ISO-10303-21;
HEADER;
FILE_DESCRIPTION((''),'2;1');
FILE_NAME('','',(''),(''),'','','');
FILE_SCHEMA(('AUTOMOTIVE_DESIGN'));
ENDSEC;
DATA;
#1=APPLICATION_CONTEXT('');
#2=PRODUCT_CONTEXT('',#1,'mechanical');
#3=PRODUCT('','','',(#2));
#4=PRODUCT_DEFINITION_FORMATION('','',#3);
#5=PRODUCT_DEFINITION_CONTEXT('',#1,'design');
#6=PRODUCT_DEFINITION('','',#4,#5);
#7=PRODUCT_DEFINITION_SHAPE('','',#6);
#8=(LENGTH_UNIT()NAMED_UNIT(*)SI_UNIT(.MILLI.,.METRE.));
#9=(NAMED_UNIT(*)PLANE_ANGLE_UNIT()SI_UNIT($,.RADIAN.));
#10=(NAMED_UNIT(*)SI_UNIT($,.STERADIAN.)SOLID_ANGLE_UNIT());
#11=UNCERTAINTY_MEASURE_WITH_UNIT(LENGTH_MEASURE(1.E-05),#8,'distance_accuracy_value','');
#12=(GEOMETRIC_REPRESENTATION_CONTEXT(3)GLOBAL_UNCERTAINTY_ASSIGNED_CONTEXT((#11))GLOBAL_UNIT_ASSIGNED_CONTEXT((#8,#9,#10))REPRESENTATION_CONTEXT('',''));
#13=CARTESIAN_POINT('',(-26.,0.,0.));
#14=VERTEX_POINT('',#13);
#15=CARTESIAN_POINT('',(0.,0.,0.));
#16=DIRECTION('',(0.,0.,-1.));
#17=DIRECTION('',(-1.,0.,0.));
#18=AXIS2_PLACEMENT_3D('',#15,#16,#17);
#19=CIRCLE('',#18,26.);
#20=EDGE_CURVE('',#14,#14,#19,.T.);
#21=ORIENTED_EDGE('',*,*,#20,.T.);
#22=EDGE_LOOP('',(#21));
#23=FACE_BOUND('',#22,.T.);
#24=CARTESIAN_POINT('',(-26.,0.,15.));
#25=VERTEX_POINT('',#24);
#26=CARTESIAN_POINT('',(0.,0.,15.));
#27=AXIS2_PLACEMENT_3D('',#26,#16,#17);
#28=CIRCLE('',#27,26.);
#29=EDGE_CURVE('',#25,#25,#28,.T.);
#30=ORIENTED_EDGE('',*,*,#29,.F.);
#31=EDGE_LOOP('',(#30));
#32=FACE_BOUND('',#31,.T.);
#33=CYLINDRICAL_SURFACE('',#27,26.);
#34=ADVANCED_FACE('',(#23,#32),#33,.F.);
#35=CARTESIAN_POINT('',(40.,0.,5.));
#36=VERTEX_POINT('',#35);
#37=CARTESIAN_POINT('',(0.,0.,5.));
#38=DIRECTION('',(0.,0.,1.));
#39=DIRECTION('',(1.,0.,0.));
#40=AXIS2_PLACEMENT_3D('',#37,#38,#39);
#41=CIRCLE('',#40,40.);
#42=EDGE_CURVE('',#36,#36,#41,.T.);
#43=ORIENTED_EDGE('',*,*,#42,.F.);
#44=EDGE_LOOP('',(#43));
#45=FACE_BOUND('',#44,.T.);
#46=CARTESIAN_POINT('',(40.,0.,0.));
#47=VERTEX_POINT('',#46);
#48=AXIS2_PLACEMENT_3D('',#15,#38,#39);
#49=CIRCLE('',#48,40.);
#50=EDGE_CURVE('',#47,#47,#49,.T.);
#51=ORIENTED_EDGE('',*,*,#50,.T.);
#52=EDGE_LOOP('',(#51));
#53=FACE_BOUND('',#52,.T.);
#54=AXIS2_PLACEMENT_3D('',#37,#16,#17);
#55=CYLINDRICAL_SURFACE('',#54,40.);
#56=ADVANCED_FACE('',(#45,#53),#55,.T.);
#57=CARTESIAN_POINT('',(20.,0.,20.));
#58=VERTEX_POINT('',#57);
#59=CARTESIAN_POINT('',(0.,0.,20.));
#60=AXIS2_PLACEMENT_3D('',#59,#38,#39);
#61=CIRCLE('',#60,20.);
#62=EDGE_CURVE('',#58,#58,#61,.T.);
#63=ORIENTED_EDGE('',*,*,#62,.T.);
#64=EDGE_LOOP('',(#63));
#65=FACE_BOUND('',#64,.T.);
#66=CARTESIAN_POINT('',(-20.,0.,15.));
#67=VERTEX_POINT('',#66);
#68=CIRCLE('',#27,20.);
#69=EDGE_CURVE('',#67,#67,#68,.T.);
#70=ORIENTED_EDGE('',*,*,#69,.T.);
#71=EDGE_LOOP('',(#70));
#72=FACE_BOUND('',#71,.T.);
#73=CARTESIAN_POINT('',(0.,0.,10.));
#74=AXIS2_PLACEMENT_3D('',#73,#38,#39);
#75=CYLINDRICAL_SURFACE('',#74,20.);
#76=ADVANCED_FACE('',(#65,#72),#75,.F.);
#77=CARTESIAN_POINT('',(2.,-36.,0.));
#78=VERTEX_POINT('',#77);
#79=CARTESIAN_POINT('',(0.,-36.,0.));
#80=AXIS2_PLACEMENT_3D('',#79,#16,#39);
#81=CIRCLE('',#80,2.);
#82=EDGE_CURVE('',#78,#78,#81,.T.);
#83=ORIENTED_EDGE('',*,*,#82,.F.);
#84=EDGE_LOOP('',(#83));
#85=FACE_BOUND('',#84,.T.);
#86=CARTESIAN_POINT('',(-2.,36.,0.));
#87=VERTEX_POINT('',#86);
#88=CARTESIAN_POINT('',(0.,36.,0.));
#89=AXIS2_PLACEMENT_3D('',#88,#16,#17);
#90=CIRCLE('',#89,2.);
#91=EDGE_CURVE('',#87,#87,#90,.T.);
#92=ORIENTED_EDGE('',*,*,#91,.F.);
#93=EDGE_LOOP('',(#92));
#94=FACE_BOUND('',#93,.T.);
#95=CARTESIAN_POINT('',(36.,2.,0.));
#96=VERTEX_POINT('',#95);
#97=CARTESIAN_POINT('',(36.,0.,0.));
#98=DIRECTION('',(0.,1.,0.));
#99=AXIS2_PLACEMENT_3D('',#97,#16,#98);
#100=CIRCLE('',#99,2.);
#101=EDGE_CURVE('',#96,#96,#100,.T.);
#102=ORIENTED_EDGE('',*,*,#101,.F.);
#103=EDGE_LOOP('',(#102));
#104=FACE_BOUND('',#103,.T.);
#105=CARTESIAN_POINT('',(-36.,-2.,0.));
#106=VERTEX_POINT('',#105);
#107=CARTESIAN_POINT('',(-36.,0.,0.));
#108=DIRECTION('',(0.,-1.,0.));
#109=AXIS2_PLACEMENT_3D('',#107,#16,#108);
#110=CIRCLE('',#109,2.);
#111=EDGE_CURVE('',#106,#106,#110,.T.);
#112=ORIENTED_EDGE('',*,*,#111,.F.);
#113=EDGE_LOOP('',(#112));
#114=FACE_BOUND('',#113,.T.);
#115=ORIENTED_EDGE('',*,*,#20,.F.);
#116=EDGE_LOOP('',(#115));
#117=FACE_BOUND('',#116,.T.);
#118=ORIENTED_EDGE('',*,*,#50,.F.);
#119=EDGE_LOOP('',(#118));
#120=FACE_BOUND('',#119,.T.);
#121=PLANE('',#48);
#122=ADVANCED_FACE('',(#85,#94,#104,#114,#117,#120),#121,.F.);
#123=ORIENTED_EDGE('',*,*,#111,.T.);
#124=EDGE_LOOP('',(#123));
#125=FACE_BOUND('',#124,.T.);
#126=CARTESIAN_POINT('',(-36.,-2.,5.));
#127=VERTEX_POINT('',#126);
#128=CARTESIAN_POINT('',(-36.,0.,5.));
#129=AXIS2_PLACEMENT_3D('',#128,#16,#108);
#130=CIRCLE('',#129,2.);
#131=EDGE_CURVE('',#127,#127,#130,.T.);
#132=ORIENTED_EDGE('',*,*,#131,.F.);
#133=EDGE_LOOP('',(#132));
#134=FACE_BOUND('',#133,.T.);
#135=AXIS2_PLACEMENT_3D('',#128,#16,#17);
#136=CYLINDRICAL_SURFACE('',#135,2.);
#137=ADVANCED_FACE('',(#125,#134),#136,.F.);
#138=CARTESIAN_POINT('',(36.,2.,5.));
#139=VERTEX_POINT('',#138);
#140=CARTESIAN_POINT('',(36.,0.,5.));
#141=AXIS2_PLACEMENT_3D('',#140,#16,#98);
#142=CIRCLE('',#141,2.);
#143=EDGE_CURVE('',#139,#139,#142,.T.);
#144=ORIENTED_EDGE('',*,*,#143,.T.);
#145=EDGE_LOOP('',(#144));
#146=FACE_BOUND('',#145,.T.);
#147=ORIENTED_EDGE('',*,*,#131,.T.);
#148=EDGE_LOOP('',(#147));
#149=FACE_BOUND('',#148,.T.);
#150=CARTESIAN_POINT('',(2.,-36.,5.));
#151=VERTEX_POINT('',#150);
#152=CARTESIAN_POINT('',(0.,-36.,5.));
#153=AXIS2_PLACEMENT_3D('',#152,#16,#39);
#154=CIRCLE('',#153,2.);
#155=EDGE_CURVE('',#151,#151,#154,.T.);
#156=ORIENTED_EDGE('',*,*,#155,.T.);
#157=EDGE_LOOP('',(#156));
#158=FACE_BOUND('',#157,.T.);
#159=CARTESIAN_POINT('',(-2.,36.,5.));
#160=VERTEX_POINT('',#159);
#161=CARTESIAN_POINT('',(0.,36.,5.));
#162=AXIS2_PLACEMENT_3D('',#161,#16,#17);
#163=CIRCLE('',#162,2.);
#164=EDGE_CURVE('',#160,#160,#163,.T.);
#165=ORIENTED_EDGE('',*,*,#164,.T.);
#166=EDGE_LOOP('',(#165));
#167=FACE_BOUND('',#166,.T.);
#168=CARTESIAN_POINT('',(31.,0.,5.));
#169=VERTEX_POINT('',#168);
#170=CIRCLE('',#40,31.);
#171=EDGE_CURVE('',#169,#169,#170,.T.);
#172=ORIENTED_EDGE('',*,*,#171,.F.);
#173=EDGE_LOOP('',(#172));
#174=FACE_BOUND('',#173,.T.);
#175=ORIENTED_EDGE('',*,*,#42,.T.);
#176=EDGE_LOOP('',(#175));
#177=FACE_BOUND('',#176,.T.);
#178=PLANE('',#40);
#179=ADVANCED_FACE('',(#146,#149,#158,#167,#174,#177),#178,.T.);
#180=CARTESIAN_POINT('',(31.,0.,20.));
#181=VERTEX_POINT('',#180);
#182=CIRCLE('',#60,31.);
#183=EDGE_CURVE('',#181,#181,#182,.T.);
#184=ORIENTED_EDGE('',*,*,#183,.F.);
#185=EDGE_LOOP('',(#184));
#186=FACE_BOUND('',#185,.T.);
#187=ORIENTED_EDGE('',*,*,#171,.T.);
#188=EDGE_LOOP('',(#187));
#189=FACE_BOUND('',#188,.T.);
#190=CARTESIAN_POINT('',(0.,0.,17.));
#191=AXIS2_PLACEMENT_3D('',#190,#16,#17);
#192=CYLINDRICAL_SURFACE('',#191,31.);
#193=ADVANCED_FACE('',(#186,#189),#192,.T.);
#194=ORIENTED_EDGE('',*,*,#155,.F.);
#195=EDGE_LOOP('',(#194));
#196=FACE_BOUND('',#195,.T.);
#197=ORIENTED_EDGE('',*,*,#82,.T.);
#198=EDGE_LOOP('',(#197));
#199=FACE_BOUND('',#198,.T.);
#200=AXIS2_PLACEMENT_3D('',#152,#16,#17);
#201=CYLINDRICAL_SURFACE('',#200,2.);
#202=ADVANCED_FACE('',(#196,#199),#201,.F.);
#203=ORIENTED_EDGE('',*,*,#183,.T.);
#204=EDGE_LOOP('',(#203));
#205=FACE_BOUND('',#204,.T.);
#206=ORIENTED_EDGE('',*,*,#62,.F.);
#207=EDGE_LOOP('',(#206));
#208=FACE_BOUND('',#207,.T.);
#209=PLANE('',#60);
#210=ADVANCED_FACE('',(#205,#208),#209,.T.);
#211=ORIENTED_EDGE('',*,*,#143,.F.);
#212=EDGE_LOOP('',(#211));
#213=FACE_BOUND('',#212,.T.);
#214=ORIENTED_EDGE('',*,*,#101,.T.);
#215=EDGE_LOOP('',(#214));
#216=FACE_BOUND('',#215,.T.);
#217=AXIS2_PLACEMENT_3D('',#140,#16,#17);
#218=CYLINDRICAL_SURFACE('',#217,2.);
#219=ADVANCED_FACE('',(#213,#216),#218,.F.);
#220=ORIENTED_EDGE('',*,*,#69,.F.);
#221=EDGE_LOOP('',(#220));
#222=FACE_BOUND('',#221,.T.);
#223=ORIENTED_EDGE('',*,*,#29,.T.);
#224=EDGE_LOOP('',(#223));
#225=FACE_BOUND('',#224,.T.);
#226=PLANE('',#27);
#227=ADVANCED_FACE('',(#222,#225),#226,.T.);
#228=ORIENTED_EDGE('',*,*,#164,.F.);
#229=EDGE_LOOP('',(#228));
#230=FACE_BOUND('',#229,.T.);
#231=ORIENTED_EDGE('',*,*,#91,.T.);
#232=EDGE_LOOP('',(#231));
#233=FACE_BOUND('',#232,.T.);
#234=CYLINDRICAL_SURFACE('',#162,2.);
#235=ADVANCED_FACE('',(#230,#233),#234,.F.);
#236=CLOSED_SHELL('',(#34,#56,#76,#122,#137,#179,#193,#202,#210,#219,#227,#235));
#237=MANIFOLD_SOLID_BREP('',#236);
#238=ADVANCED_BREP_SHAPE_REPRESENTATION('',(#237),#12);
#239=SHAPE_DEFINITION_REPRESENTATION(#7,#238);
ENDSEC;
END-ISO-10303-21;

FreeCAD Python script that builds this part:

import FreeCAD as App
import Part
import Sketcher
from FreeCAD import Vector
Q = App.Units.Quantity

doc = App.newDocument("Part")
body = doc.addObject("PartDesign::Body", "Body")

# Sketch on XY plane
sketch1 = doc.addObject("Sketcher::SketchObject", "Sketch")
body.addObject(sketch1)
sketch1.AttachmentSupport = (doc.XY_Plane, [""])
sketch1.MapMode = "FlatFace"
sketch1.addGeometry(Part.Circle(Vector(0, 0, 0), Vector(0, 0, 1), 40), False)
sketch1.addConstraint([
    Sketcher.Constraint("Coincident", 0, 3, -1, 1),
    Sketcher.Constraint("Diameter", 0, Q("80 mm")),
])
pad1 = doc.addObject("PartDesign::Pad", "Pad")
body.addObject(pad1)
pad1.Profile = sketch1
pad1.Length = 5

# Sketch on XY plane
sketch2 = doc.addObject("Sketcher::SketchObject", "Sketch001")
body.addObject(sketch2)
sketch2.AttachmentSupport = (doc.XY_Plane, [""])
sketch2.MapMode = "FlatFace"
sketch2.AttachmentOffset = App.Placement(Vector(0, 0, 5), App.Rotation())
sketch2.addGeometry(Part.Circle(Vector(0, 0, 0), Vector(0, 0, 1), 31), False)
sketch2.addConstraint([
    Sketcher.Constraint("Coincident", 0, 3, -1, 1),
    Sketcher.Constraint("Diameter", 0, Q("62 mm")),
])
pad2 = doc.addObject("PartDesign::Pad", "Pad001")
body.addObject(pad2)
pad2.Profile = sketch2
pad2.Length = 12

# Sketch on XY plane
sketch3 = doc.addObject("Sketcher::SketchObject", "Sketch002")
body.addObject(sketch3)
sketch3.AttachmentSupport = (doc.XY_Plane, [""])
sketch3.MapMode = "FlatFace"
sketch3.addGeometry(Part.Circle(Vector(0, 0, 0), Vector(0, 0, 1), 26), False)
sketch3.addConstraint([
    Sketcher.Constraint("Coincident", 0, 3, -1, 1),
    Sketcher.Constraint("Diameter", 0, Q("52 mm")),
])
pocket1 = doc.addObject("PartDesign::Pocket", "Pocket")
body.addObject(pocket1)
pocket1.Profile = sketch3
pocket1.Length = 15
pocket1.Reversed = True

# Sketch on XY plane
sketch4 = doc.addObject("Sketcher::SketchObject", "Sketch003")
body.addObject(sketch4)
sketch4.AttachmentSupport = (doc.XY_Plane, [""])
sketch4.MapMode = "FlatFace"
sketch4.AttachmentOffset = App.Placement(Vector(0, 0, 17), App.Rotation())
sketch4.addGeometry(Part.Circle(Vector(0, 0, 0), Vector(0, 0, 1), 31), False)
sketch4.addConstraint([
    Sketcher.Constraint("Coincident", 0, 3, -1, 1),
    Sketcher.Constraint("Diameter", 0, Q("62 mm")),
])
pad3 = doc.addObject("PartDesign::Pad", "Pad002")
body.addObject(pad3)
pad3.Profile = sketch4
pad3.Length = 3

# Sketch on XY plane
sketch5 = doc.addObject("Sketcher::SketchObject", "Sketch004")
body.addObject(sketch5)
sketch5.AttachmentSupport = (doc.XY_Plane, [""])
sketch5.MapMode = "FlatFace"
sketch5.addGeometry(Part.Circle(Vector(0, 36, 0), Vector(0, 0, 1), 2), False)
sketch5.addConstraint([
    Sketcher.Constraint("PointOnObject", 0, 3, -2),
    Sketcher.Constraint("Diameter", 0, Q("4 mm")),
    Sketcher.Constraint("DistanceY", -1, 1, 0, 3, Q("36 mm")),
])
pocket2 = doc.addObject("PartDesign::Pocket", "Pocket001")
body.addObject(pocket2)
pocket2.Profile = sketch5
pocket2.Length = 5
pocket2.Reversed = True
doc.recompute()

polarpattern = doc.addObject("PartDesign::PolarPattern", "PolarPattern")
body.addObject(polarpattern)
polarpattern.Originals = [pocket2]
polarpattern.Axis = (doc.Z_Axis, [""])
polarpattern.Angle = 360
polarpattern.Occurrences = 4
body.Tip = polarpattern

# Sketch on XY plane
sketch6 = doc.addObject("Sketcher::SketchObject", "Sketch005")
body.addObject(sketch6)
sketch6.AttachmentSupport = (doc.XY_Plane, [""])
sketch6.MapMode = "FlatFace"
sketch6.AttachmentOffset = App.Placement(Vector(0, 0, 20), App.Rotation())
sketch6.addGeometry(Part.Circle(Vector(0, 0, 0), Vector(0, 0, 1), 20), False)
sketch6.addConstraint([
    Sketcher.Constraint("Coincident", 0, 3, -1, 1),
    Sketcher.Constraint("Diameter", 0, Q("40 mm")),
])
pocket3 = doc.addObject("PartDesign::Pocket", "Pocket002")
body.addObject(pocket3)
pocket3.Profile = sketch6
pocket3.Length = 10

doc.recompute()
